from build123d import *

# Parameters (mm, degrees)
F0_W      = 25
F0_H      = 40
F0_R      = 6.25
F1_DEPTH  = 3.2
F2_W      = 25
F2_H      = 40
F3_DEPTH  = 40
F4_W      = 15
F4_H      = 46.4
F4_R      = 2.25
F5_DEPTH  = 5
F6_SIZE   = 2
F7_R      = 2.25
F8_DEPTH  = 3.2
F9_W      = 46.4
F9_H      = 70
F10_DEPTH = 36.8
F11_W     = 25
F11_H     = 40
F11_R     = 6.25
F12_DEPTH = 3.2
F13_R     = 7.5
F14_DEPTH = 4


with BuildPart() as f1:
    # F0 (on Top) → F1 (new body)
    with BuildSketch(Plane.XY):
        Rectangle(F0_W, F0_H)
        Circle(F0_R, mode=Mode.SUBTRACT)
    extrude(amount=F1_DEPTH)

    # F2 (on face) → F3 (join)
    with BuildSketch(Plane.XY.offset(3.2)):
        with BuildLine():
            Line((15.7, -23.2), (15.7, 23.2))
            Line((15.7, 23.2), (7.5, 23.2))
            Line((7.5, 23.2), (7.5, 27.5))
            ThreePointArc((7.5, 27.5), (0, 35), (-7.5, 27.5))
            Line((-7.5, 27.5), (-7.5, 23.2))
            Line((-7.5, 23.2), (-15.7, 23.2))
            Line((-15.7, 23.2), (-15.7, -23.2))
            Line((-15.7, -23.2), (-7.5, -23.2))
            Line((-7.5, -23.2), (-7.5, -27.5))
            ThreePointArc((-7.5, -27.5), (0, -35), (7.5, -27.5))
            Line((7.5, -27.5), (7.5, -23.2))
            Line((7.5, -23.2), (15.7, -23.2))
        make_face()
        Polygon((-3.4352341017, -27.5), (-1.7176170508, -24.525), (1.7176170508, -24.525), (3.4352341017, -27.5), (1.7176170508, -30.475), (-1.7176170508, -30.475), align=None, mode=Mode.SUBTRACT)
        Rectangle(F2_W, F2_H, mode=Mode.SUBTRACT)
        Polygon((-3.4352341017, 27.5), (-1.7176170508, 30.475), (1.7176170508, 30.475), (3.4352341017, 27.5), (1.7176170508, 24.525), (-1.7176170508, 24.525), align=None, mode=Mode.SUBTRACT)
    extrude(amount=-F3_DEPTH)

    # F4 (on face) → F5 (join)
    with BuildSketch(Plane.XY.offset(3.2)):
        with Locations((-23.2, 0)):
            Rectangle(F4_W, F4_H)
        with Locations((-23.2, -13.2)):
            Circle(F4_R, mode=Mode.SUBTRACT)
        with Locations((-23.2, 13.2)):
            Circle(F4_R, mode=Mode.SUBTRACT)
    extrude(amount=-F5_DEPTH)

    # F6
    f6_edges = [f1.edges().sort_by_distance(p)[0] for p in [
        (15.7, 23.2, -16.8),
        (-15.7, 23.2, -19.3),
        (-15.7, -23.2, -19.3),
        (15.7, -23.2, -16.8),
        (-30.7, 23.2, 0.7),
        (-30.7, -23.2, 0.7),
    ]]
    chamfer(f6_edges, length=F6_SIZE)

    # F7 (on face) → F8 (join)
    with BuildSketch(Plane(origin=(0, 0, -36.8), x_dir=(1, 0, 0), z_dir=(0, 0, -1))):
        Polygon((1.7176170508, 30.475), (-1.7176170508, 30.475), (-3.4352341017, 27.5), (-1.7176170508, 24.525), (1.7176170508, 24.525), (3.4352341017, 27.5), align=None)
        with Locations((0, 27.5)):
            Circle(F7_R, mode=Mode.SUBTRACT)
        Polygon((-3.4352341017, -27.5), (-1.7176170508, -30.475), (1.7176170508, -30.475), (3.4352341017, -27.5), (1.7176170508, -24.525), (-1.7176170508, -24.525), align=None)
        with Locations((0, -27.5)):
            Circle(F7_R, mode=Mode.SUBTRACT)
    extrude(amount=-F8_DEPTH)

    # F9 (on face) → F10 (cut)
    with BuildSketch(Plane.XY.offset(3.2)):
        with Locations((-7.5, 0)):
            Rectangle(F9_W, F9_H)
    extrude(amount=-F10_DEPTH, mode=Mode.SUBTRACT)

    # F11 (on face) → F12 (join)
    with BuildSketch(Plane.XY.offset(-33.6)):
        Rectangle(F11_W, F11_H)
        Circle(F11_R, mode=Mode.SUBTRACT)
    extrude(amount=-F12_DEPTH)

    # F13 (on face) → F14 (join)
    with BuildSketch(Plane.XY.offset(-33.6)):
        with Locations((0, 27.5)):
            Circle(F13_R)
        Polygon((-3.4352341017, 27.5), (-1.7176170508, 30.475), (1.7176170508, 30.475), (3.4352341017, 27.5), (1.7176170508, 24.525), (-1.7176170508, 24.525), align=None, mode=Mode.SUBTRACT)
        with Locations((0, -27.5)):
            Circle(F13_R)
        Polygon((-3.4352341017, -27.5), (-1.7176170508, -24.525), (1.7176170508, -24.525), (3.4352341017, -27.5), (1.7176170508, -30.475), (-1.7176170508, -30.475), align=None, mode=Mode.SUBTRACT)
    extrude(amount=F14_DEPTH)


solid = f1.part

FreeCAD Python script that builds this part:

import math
import FreeCAD as App
import Part
import Sketcher
from FreeCAD import Vector
Q = App.Units.Quantity


def edges_at(feature, points):
    """Names of the edges that pass closest to the given points."""
    edges = feature.Shape.Edges
    near = lambda p: min(range(len(edges)), key=lambda i: edges[i].distToShape(Part.Vertex(*p))[0])
    return sorted({f"Edge{near(p) + 1}" for p in points})

doc = App.newDocument("Part")
body = doc.addObject("PartDesign::Body", "Body")

# Sketch on XY plane
sketch1 = body.newObject("Sketcher::SketchObject", "Sketch")
sketch1.AttachmentSupport = (doc.getObject("XY_Plane"), [""])
sketch1.MapMode = "FlatFace"
sketch1.addGeometry([
    Part.LineSegment(Vector(-12, 20, 0), Vector(-12, -20, 0)),  # 0
    Part.LineSegment(Vector(-12, -20, 0), Vector(12, -20, 0)),  # 1
    Part.LineSegment(Vector(12, -20, 0), Vector(12, 20, 0)),  # 2
    Part.LineSegment(Vector(12, 20, 0), Vector(-12, 20, 0)),  # 3
    Part.Circle(Vector(0, 0, 0), Vector(0, 0, 1), 6),  # 4
], False)
sketch1.addConstraint([
    Sketcher.Constraint("Coincident", 0, 2, 1, 1),
    Sketcher.Constraint("Coincident", 1, 2, 2, 1),
    Sketcher.Constraint("Coincident", 2, 2, 3, 1),
    Sketcher.Constraint("Coincident", 3, 2, 0, 1),
    Sketcher.Constraint("Vertical", 0),
    Sketcher.Constraint("Horizontal", 1),
    Sketcher.Constraint("Vertical", 2),
    Sketcher.Constraint("Horizontal", 3),
    Sketcher.Constraint("Coincident", 4, 3, -1, 1),
    Sketcher.Constraint("Symmetric", 0, 2, 2, 2, -1, 1),
    Sketcher.Constraint("Diameter", 4, Q("12.5 mm")),
    Sketcher.Constraint("DistanceX", 1, 1, 1, 2, Q("25 mm")),
    Sketcher.Constraint("DistanceY", 0, 2, 0, 1, Q("40 mm")),
])
pad1 = body.newObject("PartDesign::Pad", "Pad")
pad1.Profile = sketch1
pad1.Length = 3.2

# Sketch on XY plane
sketch2 = body.newObject("Sketcher::SketchObject", "Sketch001")
sketch2.AttachmentSupport = (doc.getObject("XY_Plane"), [""])
sketch2.MapMode = "FlatFace"
sketch2.AttachmentOffset = App.Placement(Vector(0, 0, 3.2), App.Rotation())
sketch2.addGeometry([
    Part.LineSegment(Vector(15.7, -23.2, 0), Vector(15.7, 23.2, 0)),  # 0
    Part.LineSegment(Vector(15.7, 23.2, 0), Vector(7.5, 23.2, 0)),  # 1
    Part.LineSegment(Vector(7.5, 23.2, 0), Vector(7.5, 27.5, 0)),  # 2
    Part.ArcOfCircle(Part.Circle(Vector(0, 27.5, 0), Vector(0, 0, 1), 7.5), math.radians(0), math.radians(180)),  # 3
    Part.LineSegment(Vector(-7.5, 27.5, 0), Vector(-7.5, 23.2, 0)),  # 4
    Part.LineSegment(Vector(-7.5, 23.2, 0), Vector(-15.7, 23.2, 0)),  # 5
    Part.LineSegment(Vector(-15.7, 23.2, 0), Vector(-15.7, -23.2, 0)),  # 6
    Part.LineSegment(Vector(-15.7, -23.2, 0), Vector(-7.5, -23.2, 0)),  # 7
    Part.LineSegment(Vector(-7.5, -23.2, 0), Vector(-7.5, -27.5, 0)),  # 8
    Part.ArcOfCircle(Part.Circle(Vector(0, -27.5, 0), Vector(0, 0, 1), 7.5), math.radians(180), math.radians(360)),  # 9
    Part.LineSegment(Vector(7.5, -27.5, 0), Vector(7.5, -23.2, 0)),  # 10
    Part.LineSegment(Vector(7.5, -23.2, 0), Vector(15.7, -23.2, 0)),  # 11
    Part.LineSegment(Vector(-1.7, -30.5, 0), Vector(-3.4, -27.5, 0)),  # 12
    Part.LineSegment(Vector(-3.4, -27.5, 0), Vector(-1.7, -24.5, 0)),  # 13
    Part.LineSegment(Vector(-1.7, -24.5, 0), Vector(1.7, -24.5, 0)),  # 14
    Part.LineSegment(Vector(1.7, -24.5, 0), Vector(3.4, -27.5, 0)),  # 15
    Part.LineSegment(Vector(3.4, -27.5, 0), Vector(1.7, -30.5, 0)),  # 16
    Part.LineSegment(Vector(1.7, -30.5, 0), Vector(-1.7, -30.5, 0)),  # 17
    Part.LineSegment(Vector(12.5, -20, 0), Vector(-12.5, -20, 0)),  # 18
    Part.LineSegment(Vector(-12.5, -20, 0), Vector(-12.5, 20, 0)),  # 19
    Part.LineSegment(Vector(-12.5, 20, 0), Vector(12.5, 20, 0)),  # 20
    Part.LineSegment(Vector(12.5, 20, 0), Vector(12.5, -20, 0)),  # 21
    Part.LineSegment(Vector(-1.7, 24.5, 0), Vector(-3.4, 27.5, 0)),  # 22
    Part.LineSegment(Vector(-3.4, 27.5, 0), Vector(-1.7, 30.5, 0)),  # 23
    Part.LineSegment(Vector(-1.7, 30.5, 0), Vector(1.7, 30.5, 0)),  # 24
    Part.LineSegment(Vector(1.7, 30.5, 0), Vector(3.4, 27.5, 0)),  # 25
    Part.LineSegment(Vector(3.4, 27.5, 0), Vector(1.7, 24.5, 0)),  # 26
    Part.LineSegment(Vector(1.7, 24.5, 0), Vector(-1.7, 24.5, 0)),  # 27
], False)
sketch2.addConstraint([
    Sketcher.Constraint("Coincident", 0, 2, 1, 1),
    Sketcher.Constraint("Coincident", 1, 2, 2, 1),
    Sketcher.Constraint("Tangent", 2, 2, 3, 1),
    Sketcher.Constraint("Tangent", 3, 2, 4, 1),
    Sketcher.Constraint("Coincident", 4, 2, 5, 1),
    Sketcher.Constraint("Coincident", 5, 2, 6, 1),
    Sketcher.Constraint("Coincident", 6, 2, 7, 1),
    Sketcher.Constraint("Coincident", 7, 2, 8, 1),
    Sketcher.Constraint("Tangent", 8, 2, 9, 1),
    Sketcher.Constraint("Tangent", 9, 2, 10, 1),
    Sketcher.Constraint("Coincident", 10, 2, 11, 1),
    Sketcher.Constraint("Coincident", 11, 2, 0, 1),
    Sketcher.Constraint("Coincident", 12, 2, 13, 1),
    Sketcher.Constraint("Coincident", 13, 2, 14, 1),
    Sketcher.Constraint("Coincident", 14, 2, 15, 1),
    Sketcher.Constraint("Coincident", 15, 2, 16, 1),
    Sketcher.Constraint("Coincident", 16, 2, 17, 1),
    Sketcher.Constraint("Coincident", 17, 2, 12, 1),
    Sketcher.Constraint("Coincident", 18, 2, 19, 1),
    Sketcher.Constraint("Coincident", 19, 2, 20, 1),
    Sketcher.Constraint("Coincident", 20, 2, 21, 1),
    Sketcher.Constraint("Coincident", 21, 2, 18, 1),
    Sketcher.Constraint("Coincident", 22, 2, 23, 1),
    Sketcher.Constraint("Coincident", 23, 2, 24, 1),
    Sketcher.Constraint("Coincident", 24, 2, 25, 1),
    Sketcher.Constraint("Coincident", 25, 2, 26, 1),
    Sketcher.Constraint("Coincident", 26, 2, 27, 1),
    Sketcher.Constraint("Coincident", 27, 2, 22, 1),
    Sketcher.Constraint("Vertical", 0),
    Sketcher.Constraint("Horizontal", 1),
    Sketcher.Constraint("Vertical", 2),
    Sketcher.Constraint("Vertical", 4),
    Sketcher.Constraint("Horizontal", 5),
    Sketcher.Constraint("Vertical", 6),
    Sketcher.Constraint("Horizontal", 7),
    Sketcher.Constraint("Vertical", 8),
    Sketcher.Constraint("Vertical", 10),
    Sketcher.Constraint("Horizontal", 11),
    Sketcher.Constraint("Horizontal", 14),
    Sketcher.Constraint("Horizontal", 17),
    Sketcher.Constraint("Horizontal", 18),
    Sketcher.Constraint("Vertical", 19),
    Sketcher.Constraint("Horizontal", 20),
    Sketcher.Constraint("Vertical", 21),
    Sketcher.Constraint("Horizontal", 24),
    Sketcher.Constraint("Horizontal", 27),
    Sketcher.Constraint("Equal", 3, 9),
    Sketcher.Constraint("Symmetric", 3, 3, 9, 3, -1, 1),
    Sketcher.Constraint("Symmetric", 0, 2, 6, 2, -1, 1),
    Sketcher.Constraint("Symmetric", 18, 2, 20, 2, -1, 1),
    Sketcher.Constraint("Symmetric", 15, 2, 22, 2, -1, 1),
    Sketcher.Constraint("Symmetric", 16, 2, 23, 2, -1, 1),
    Sketcher.Constraint("Symmetric", 12, 2, 25, 2, -1, 1),
    Sketcher.Constraint("Symmetric", 13, 2, 26, 2, -1, 1),
    Sketcher.Constraint("Symmetric", 1, 2, 4, 2, -2),
    Sketcher.Constraint("Symmetric", 12, 2, 15, 2, -2),
    Sketcher.Constraint("Parallel", 12, 15),
    Sketcher.Constraint("Parallel", 13, 16),
    Sketcher.Constraint("Parallel", 15, 22),
    Sketcher.Constraint("Parallel", 22, 25),
    Sketcher.Constraint("Horizontal", 7, 2, 10, 2),
    Sketcher.Constraint("Horizontal", 9, 2, 12, 2),
    Sketcher.Constraint("Vertical", 14, 2, 16, 2),
    Sketcher.Constraint("Vertical", 13, 2, 17, 2),
    Sketcher.Constraint("Radius", 3, Q("7.5 mm")),
    Sketcher.Constraint("DistanceX", 18, 2, 18, 1, Q("25 mm")),
    Sketcher.Constraint("DistanceY", 19, 1, 19, 2, Q("40 mm")),
    Sketcher.Constraint("Angle", 12, Q("120 deg")),
    Sketcher.Constraint("DistanceX", 1, 2, 1, 1, Q("8.2 mm")),
    Sketcher.Constraint("DistanceY", 0, 1, 0, 2, Q("46.4 mm")),
    Sketcher.Constraint("DistanceY", 2, 1, 2, 2, Q("4.3 mm")),
    Sketcher.Constraint("DistanceY", 16, 2, 14, 2, Q("5.95 mm")),
    Sketcher.Constraint("DistanceX", 14, 1, 14, 2, Q("3.435234 mm")),
])
pad2 = body.newObject("PartDesign::Pad", "Pad001")
pad2.Profile = sketch2
pad2.Length = 40
pad2.Reversed = True

# Sketch on XY plane
sketch3 = body.newObject("Sketcher::SketchObject", "Sketch002")
sketch3.AttachmentSupport = (doc.getObject("XY_Plane"), [""])
sketch3.MapMode = "FlatFace"
sketch3.AttachmentOffset = App.Placement(Vector(0, 0, 3.2), App.Rotation())
sketch3.addGeometry([
    Part.LineSegment(Vector(-30.7, 23.2, 0), Vector(-30.7, -23.2, 0)),  # 0
    Part.LineSegment(Vector(-30.7, -23.2, 0), Vector(-15.7, -23.2, 0)),  # 1
    Part.LineSegment(Vector(-15.7, -23.2, 0), Vector(-15.7, 23.2, 0)),  # 2
    Part.LineSegment(Vector(-15.7, 23.2, 0), Vector(-30.7, 23.2, 0)),  # 3
    Part.Circle(Vector(-23.2, -13.2, 0), Vector(0, 0, 1), 2.2),  # 4
    Part.Circle(Vector(-23.2, 13.2, 0), Vector(0, 0, 1), 2.2),  # 5
], False)
sketch3.addConstraint([
    Sketcher.Constraint("Coincident", 0, 2, 1, 1),
    Sketcher.Constraint("Coincident", 1, 2, 2, 1),
    Sketcher.Constraint("Coincident", 2, 2, 3, 1),
    Sketcher.Constraint("Coincident", 3, 2, 0, 1),
    Sketcher.Constraint("Vertical", 0),
    Sketcher.Constraint("Horizontal", 1),
    Sketcher.Constraint("Vertical", 2),
    Sketcher.Constraint("Horizontal", 3),
    Sketcher.Constraint("Equal", 4, 5),
    Sketcher.Constraint("Symmetric", 4, 3, 5, 3, -1),
    Sketcher.Constraint("Diameter", 4, Q("4.5 mm")),
    Sketcher.Constraint("DistanceX", 1, 1, 1, 2, Q("15 mm")),
    Sketcher.Constraint("DistanceY", 0, 2, 0, 1, Q("46.4 mm")),
    Sketcher.Constraint("DistanceY", 0, 2, 4, 3, Q("10 mm")),
    Sketcher.Constraint("DistanceY", 5, 3, 2, 2, Q("10 mm")),
    Sketcher.Constraint("DistanceX", 4, 3, -1, 1, Q("23.2 mm")),
    Sketcher.Constraint("DistanceX", 0, 2, -1, 1, Q("30.7 mm")),
])
pad3 = body.newObject("PartDesign::Pad", "Pad002")
pad3.Profile = sketch3
pad3.Length = 5
pad3.Reversed = True
doc.recompute()

chamfer = body.newObject("PartDesign::Chamfer", "Chamfer")
chamfer.Base = (pad3, edges_at(pad3, [
    (15.7, 23.2, -16.8),
    (-15.7, 23.2, -19.3),
    (-15.7, -23.2, -19.3),
    (15.7, -23.2, -16.8),
    (-30.7, 23.2, 0.7),
    (-30.7, -23.2, 0.7),
]))
chamfer.Size = 2

# Sketch on XY plane
sketch4 = body.newObject("Sketcher::SketchObject", "Sketch003")
sketch4.AttachmentSupport = (doc.getObject("XY_Plane"), [""])
sketch4.MapMode = "FlatFace"
sketch4.AttachmentOffset = App.Placement(Vector(0, 0, -36.8), App.Rotation())
sketch4.addGeometry([
    Part.LineSegment(Vector(1.7, -30.5, 0), Vector(-1.7, -30.5, 0)),  # 0
    Part.LineSegment(Vector(-1.7, -30.5, 0), Vector(-3.4, -27.5, 0)),  # 1
    Part.LineSegment(Vector(-3.4, -27.5, 0), Vector(-1.7, -24.5, 0)),  # 2
    Part.LineSegment(Vector(-1.7, -24.5, 0), Vector(1.7, -24.5, 0)),  # 3
    Part.LineSegment(Vector(1.7, -24.5, 0), Vector(3.4, -27.5, 0)),  # 4
    Part.LineSegment(Vector(3.4, -27.5, 0), Vector(1.7, -30.5, 0)),  # 5
    Part.Circle(Vector(0, -27.5, 0), Vector(0, 0, 1), 2.2),  # 6
    Part.LineSegment(Vector(-3.4, 27.5, 0), Vector(-1.7, 30.5, 0)),  # 7
    Part.LineSegment(Vector(-1.7, 30.5, 0), Vector(1.7, 30.5, 0)),  # 8
    Part.LineSegment(Vector(1.7, 30.5, 0), Vector(3.4, 27.5, 0)),  # 9
    Part.LineSegment(Vector(3.4, 27.5, 0), Vector(1.7, 24.5, 0)),  # 10
    Part.LineSegment(Vector(1.7, 24.5, 0), Vector(-1.7, 24.5, 0)),  # 11
    Part.LineSegment(Vector(-1.7, 24.5, 0), Vector(-3.4, 27.5, 0)),  # 12
    Part.Circle(Vector(0, 27.5, 0), Vector(0, 0, 1), 2.2),  # 13
], False)
sketch4.addConstraint([
    Sketcher.Constraint("Coincident", 0, 2, 1, 1),
    Sketcher.Constraint("Coincident", 1, 2, 2, 1),
    Sketcher.Constraint("Coincident", 2, 2, 3, 1),
    Sketcher.Constraint("Coincident", 3, 2, 4, 1),
    Sketcher.Constraint("Coincident", 4, 2, 5, 1),
    Sketcher.Constraint("Coincident", 5, 2, 0, 1),
    Sketcher.Constraint("Coincident", 7, 2, 8, 1),
    Sketcher.Constraint("Coincident", 8, 2, 9, 1),
    Sketcher.Constraint("Coincident", 9, 2, 10, 1),
    Sketcher.Constraint("Coincident", 10, 2, 11, 1),
    Sketcher.Constraint("Coincident", 11, 2, 12, 1),
    Sketcher.Constraint("Coincident", 12, 2, 7, 1),
    Sketcher.Constraint("Horizontal", 0),
    Sketcher.Constraint("Horizontal", 3),
    Sketcher.Constraint("Horizontal", 8),
    Sketcher.Constraint("Horizontal", 11),
    Sketcher.Constraint("Equal", 6, 13),
    Sketcher.Constraint("Symmetric", 6, 3, 13, 3, -1, 1),
    Sketcher.Constraint("Symmetric", 5, 2, 7, 2, -1, 1),
    Sketcher.Constraint("Symmetric", 1, 2, 9, 2, -1, 1),
    Sketcher.Constraint("Symmetric", 2, 2, 10, 2, -1, 1),
    Sketcher.Constraint("Symmetric", 4, 2, 12, 2, -1, 1),
    Sketcher.Constraint("Symmetric", 1, 2, 4, 2, -2),
    Sketcher.Constraint("PointOnObject", 6, 3, -2),
    Sketcher.Constraint("Parallel", 1, 4),
    Sketcher.Constraint("Parallel", 2, 5),
    Sketcher.Constraint("Parallel", 4, 9),
    Sketcher.Constraint("Parallel", 9, 12),
    Sketcher.Constraint("Horizontal", 6, 3, 1, 2),
    Sketcher.Constraint("Vertical", 0, 2, 2, 2),
    Sketcher.Constraint("Vertical", 3, 2, 5, 2),
    Sketcher.Constraint("Diameter", 6, Q("4.5 mm")),
    Sketcher.Constraint("Angle", 1, Q("120 deg")),
    Sketcher.Constraint("DistanceY", 6, 3, 13, 3, Q("55 mm")),
    Sketcher.Constraint("DistanceY", 0, 2, 2, 2, Q("5.95 mm")),
    Sketcher.Constraint("DistanceX", 0, 2, 0, 1, Q("3.435234 mm")),
])
pad4 = body.newObject("PartDesign::Pad", "Pad003")
pad4.Profile = sketch4
pad4.Length = 3.2

# Sketch on XY plane
sketch5 = body.newObject("Sketcher::SketchObject", "Sketch004")
sketch5.AttachmentSupport = (doc.getObject("XY_Plane"), [""])
sketch5.MapMode = "FlatFace"
sketch5.AttachmentOffset = App.Placement(Vector(0, 0, 3.2), App.Rotation())
sketch5.addGeometry([
    Part.LineSegment(Vector(-31, 35, 0), Vector(-31, -35, 0)),
    Part.LineSegment(Vector(-31, -35, 0), Vector(16, -35, 0)),
    Part.LineSegment(Vector(16, -35, 0), Vector(16, 35, 0)),
    Part.LineSegment(Vector(16, 35, 0), Vector(-31, 35, 0)),
], False)
sketch5.addConstraint([
    Sketcher.Constraint("Coincident", 0, 2, 1, 1),
    Sketcher.Constraint("Coincident", 1, 2, 2, 1),
    Sketcher.Constraint("Coincident", 2, 2, 3, 1),
    Sketcher.Constraint("Coincident", 3, 2, 0, 1),
    Sketcher.Constraint("Vertical", 0),
    Sketcher.Constraint("Horizontal", 1),
    Sketcher.Constraint("Vertical", 2),
    Sketcher.Constraint("Horizontal", 3),
    Sketcher.Constraint("DistanceY", 0, 2, 0, 1, Q("70 mm")),
    Sketcher.Constraint("DistanceX", 1, 1, 1, 2, Q("46.4 mm")),
    Sketcher.Constraint("DistanceY", 0, 2, -1, 1, Q("35 mm")),
    Sketcher.Constraint("DistanceX", 0, 2, -1, 1, Q("30.7 mm")),
])
pocket1 = body.newObject("PartDesign::Pocket", "Pocket")
pocket1.Profile = sketch5
pocket1.Length = 36.8

# Sketch on XY plane
sketch6 = body.newObject("Sketcher::SketchObject", "Sketch005")
sketch6.AttachmentSupport = (doc.getObject("XY_Plane"), [""])
sketch6.MapMode = "FlatFace"
sketch6.AttachmentOffset = App.Placement(Vector(0, 0, -33.6), App.Rotation())
sketch6.addGeometry([
    Part.LineSegment(Vector(-12, 20, 0), Vector(-12, -20, 0)),  # 0
    Part.LineSegment(Vector(-12, -20, 0), Vector(12, -20, 0)),  # 1
    Part.LineSegment(Vector(12, -20, 0), Vector(12, 20, 0)),  # 2
    Part.LineSegment(Vector(12, 20, 0), Vector(-12, 20, 0)),  # 3
    Part.Circle(Vector(0, 0, 0), Vector(0, 0, 1), 6),  # 4
], False)
sketch6.addConstraint([
    Sketcher.Constraint("Coincident", 0, 2, 1, 1),
    Sketcher.Constraint("Coincident", 1, 2, 2, 1),
    Sketcher.Constraint("Coincident", 2, 2, 3, 1),
    Sketcher.Constraint("Coincident", 3, 2, 0, 1),
    Sketcher.Constraint("Vertical", 0),
    Sketcher.Constraint("Horizontal", 1),
    Sketcher.Constraint("Vertical", 2),
    Sketcher.Constraint("Horizontal", 3),
    Sketcher.Constraint("Coincident", 4, 3, -1, 1),
    Sketcher.Constraint("Symmetric", 0, 2, 2, 2, -1, 1),
    Sketcher.Constraint("Diameter", 4, Q("12.5 mm")),
    Sketcher.Constraint("DistanceX", 1, 1, 1, 2, Q("25 mm")),
    Sketcher.Constraint("DistanceY", 0, 2, 0, 1, Q("40 mm")),
])
pad5 = body.newObject("PartDesign::Pad", "Pad004")
pad5.Profile = sketch6
pad5.Length = 3.2
pad5.Reversed = True

# Sketch on XY plane
sketch7 = body.newObject("Sketcher::SketchObject", "Sketch006")
sketch7.AttachmentSupport = (doc.getObject("XY_Plane"), [""])
sketch7.MapMode = "FlatFace"
sketch7.AttachmentOffset = App.Placement(Vector(0, 0, -33.6), App.Rotation())
sketch7.addGeometry([
    Part.Circle(Vector(0, 27.5, 0), Vector(0, 0, 1), 7.5),  # 0
    Part.LineSegment(Vector(-1.7, 24.5, 0), Vector(-3.4, 27.5, 0)),  # 1
    Part.LineSegment(Vector(-3.4, 27.5, 0), Vector(-1.7, 30.5, 0)),  # 2
    Part.LineSegment(Vector(-1.7, 30.5, 0), Vector(1.7, 30.5, 0)),  # 3
    Part.LineSegment(Vector(1.7, 30.5, 0), Vector(3.4, 27.5, 0)),  # 4
    Part.LineSegment(Vector(3.4, 27.5, 0), Vector(1.7, 24.5, 0)),  # 5
    Part.LineSegment(Vector(1.7, 24.5, 0), Vector(-1.7, 24.5, 0)),  # 6
    Part.Circle(Vector(0, -27.5, 0), Vector(0, 0, 1), 7.5),  # 7
    Part.LineSegment(Vector(-1.7, -30.5, 0), Vector(-3.4, -27.5, 0)),  # 8
    Part.LineSegment(Vector(-3.4, -27.5, 0), Vector(-1.7, -24.5, 0)),  # 9
    Part.LineSegment(Vector(-1.7, -24.5, 0), Vector(1.7, -24.5, 0)),  # 10
    Part.LineSegment(Vector(1.7, -24.5, 0), Vector(3.4, -27.5, 0)),  # 11
    Part.LineSegment(Vector(3.4, -27.5, 0), Vector(1.7, -30.5, 0)),  # 12
    Part.LineSegment(Vector(1.7, -30.5, 0), Vector(-1.7, -30.5, 0)),  # 13
], False)
sketch7.addConstraint([
    Sketcher.Constraint("Coincident", 1, 2, 2, 1),
    Sketcher.Constraint("Coincident", 2, 2, 3, 1),
    Sketcher.Constraint("Coincident", 3, 2, 4, 1),
    Sketcher.Constraint("Coincident", 4, 2, 5, 1),
    Sketcher.Constraint("Coincident", 5, 2, 6, 1),
    Sketcher.Constraint("Coincident", 6, 2, 1, 1),
    Sketcher.Constraint("Coincident", 8, 2, 9, 1),
    Sketcher.Constraint("Coincident", 9, 2, 10, 1),
    Sketcher.Constraint("Coincident", 10, 2, 11, 1),
    Sketcher.Constraint("Coincident", 11, 2, 12, 1),
    Sketcher.Constraint("Coincident", 12, 2, 13, 1),
    Sketcher.Constraint("Coincident", 13, 2, 8, 1),
    Sketcher.Constraint("Horizontal", 3),
    Sketcher.Constraint("Horizontal", 6),
    Sketcher.Constraint("Horizontal", 10),
    Sketcher.Constraint("Horizontal", 13),
    Sketcher.Constraint("Equal", 0, 7),
    Sketcher.Constraint("Symmetric", 0, 3, 7, 3, -1, 1),
    Sketcher.Constraint("Symmetric", 4, 2, 8, 2, -1, 1),
    Sketcher.Constraint("Symmetric", 5, 2, 9, 2, -1, 1),
    Sketcher.Constraint("Symmetric", 1, 2, 11, 2, -1, 1),
    Sketcher.Constraint("Symmetric", 2, 2, 12, 2, -1, 1),
    Sketcher.Constraint("Symmetric", 1, 2, 4, 2, -2),
    Sketcher.Constraint("PointOnObject", 0, 3, -2),
    Sketcher.Constraint("Parallel", 1, 4),
    Sketcher.Constraint("Parallel", 2, 5),
    Sketcher.Constraint("Parallel", 4, 8),
    Sketcher.Constraint("Parallel", 8, 11),
    Sketcher.Constraint("Horizontal", 0, 3, 1, 2),
    Sketcher.Constraint("Vertical", 3, 2, 5, 2),
    Sketcher.Constraint("Vertical", 2, 2, 6, 2),
    Sketcher.Constraint("Diameter", 0, Q("15 mm")),
    Sketcher.Constraint("Angle", 1, Q("120 deg")),
    Sketcher.Constraint("DistanceY", 7, 3, 0, 3, Q("55 mm")),
    Sketcher.Constraint("DistanceY", 5, 2, 3, 2, Q("5.95 mm")),
    Sketcher.Constraint("DistanceX", 3, 1, 3, 2, Q("3.435234 mm")),
])
pad6 = body.newObject("PartDesign::Pad", "Pad005")
pad6.Profile = sketch7
pad6.Length = 4

doc.recompute()
